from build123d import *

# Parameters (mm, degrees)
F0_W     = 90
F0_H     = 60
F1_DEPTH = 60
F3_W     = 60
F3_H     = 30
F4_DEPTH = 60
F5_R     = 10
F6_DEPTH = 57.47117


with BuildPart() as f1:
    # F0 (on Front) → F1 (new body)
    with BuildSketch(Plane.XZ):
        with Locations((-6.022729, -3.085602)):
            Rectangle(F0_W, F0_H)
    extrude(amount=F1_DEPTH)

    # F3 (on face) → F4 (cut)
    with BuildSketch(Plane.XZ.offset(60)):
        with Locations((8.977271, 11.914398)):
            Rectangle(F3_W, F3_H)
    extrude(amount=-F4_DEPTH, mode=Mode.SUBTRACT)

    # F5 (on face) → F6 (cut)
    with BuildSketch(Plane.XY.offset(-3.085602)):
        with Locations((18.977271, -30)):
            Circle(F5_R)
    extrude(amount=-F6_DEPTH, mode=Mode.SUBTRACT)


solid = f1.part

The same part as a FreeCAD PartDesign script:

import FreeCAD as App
import Part
import Sketcher

V = App.Vector

doc = App.newDocument("Part")
body = doc.addObject("PartDesign::Body", "Body")

# Sketch on XZ plane
sketch1 = body.newObject("Sketcher::SketchObject", "Sketch")
sketch1.AttachmentSupport = (doc.getObject("XZ_Plane"), [""])
sketch1.MapMode = "FlatFace"
sketch1.addGeometry(Part.LineSegment(V(-51, 27, 0), V(-51, -33, 0)), False)
sketch1.addGeometry(Part.LineSegment(V(-51, -33, 0), V(39, -33, 0)), False)
sketch1.addGeometry(Part.LineSegment(V(39, -33, 0), V(39, 27, 0)), False)
sketch1.addGeometry(Part.LineSegment(V(39, 27, 0), V(-51, 27, 0)), False)
sketch1.addConstraint(Sketcher.Constraint("Coincident", 0, 2, 1, 1))
sketch1.addConstraint(Sketcher.Constraint("Coincident", 1, 2, 2, 1))
sketch1.addConstraint(Sketcher.Constraint("Coincident", 2, 2, 3, 1))
sketch1.addConstraint(Sketcher.Constraint("Coincident", 3, 2, 0, 1))
sketch1.addConstraint(Sketcher.Constraint("Vertical", 0))
sketch1.addConstraint(Sketcher.Constraint("Horizontal", 1))
sketch1.addConstraint(Sketcher.Constraint("Vertical", 2))
sketch1.addConstraint(Sketcher.Constraint("Horizontal", 3))
sketch1.addConstraint(Sketcher.Constraint("DistanceX", 1, 1, 1, 2, 90.0))
sketch1.addConstraint(Sketcher.Constraint("DistanceY", 0, 2, 0, 1, 60.0))
sketch1.addConstraint(Sketcher.Constraint("DistanceX", 0, 2, -1, 1, 51.022729))
sketch1.addConstraint(Sketcher.Constraint("DistanceY", 0, 2, -1, 1, 33.085602))
pad1 = body.newObject("PartDesign::Pad", "Pad")
pad1.Profile = sketch1
pad1.Length = 60

# Sketch on XZ plane
sketch2 = body.newObject("Sketcher::SketchObject", "Sketch001")
sketch2.AttachmentSupport = (doc.getObject("XZ_Plane"), [""])
sketch2.MapMode = "FlatFace"
sketch2.AttachmentOffset = App.Placement(V(0, 0, 60), App.Rotation())
sketch2.addGeometry(Part.LineSegment(V(-21, 27, 0), V(-21, -3, 0)), False)
sketch2.addGeometry(Part.LineSegment(V(-21, -3, 0), V(39, -3, 0)), False)
sketch2.addGeometry(Part.LineSegment(V(39, -3, 0), V(39, 27, 0)), False)
sketch2.addGeometry(Part.LineSegment(V(39, 27, 0), V(-21, 27, 0)), False)
sketch2.addConstraint(Sketcher.Constraint("Coincident", 0, 2, 1, 1))
sketch2.addConstraint(Sketcher.Constraint("Coincident", 1, 2, 2, 1))
sketch2.addConstraint(Sketcher.Constraint("Coincident", 2, 2, 3, 1))
sketch2.addConstraint(Sketcher.Constraint("Coincident", 3, 2, 0, 1))
sketch2.addConstraint(Sketcher.Constraint("Vertical", 0))
sketch2.addConstraint(Sketcher.Constraint("Horizontal", 1))
sketch2.addConstraint(Sketcher.Constraint("Vertical", 2))
sketch2.addConstraint(Sketcher.Constraint("Horizontal", 3))
sketch2.addConstraint(Sketcher.Constraint("DistanceX", 1, 1, 1, 2, 60.0))
sketch2.addConstraint(Sketcher.Constraint("DistanceY", 0, 2, 0, 1, 30.0))
sketch2.addConstraint(Sketcher.Constraint("DistanceX", 0, 2, -1, 1, 21.022729))
sketch2.addConstraint(Sketcher.Constraint("DistanceY", 0, 2, -1, 1, 3.085602))
pocket1 = body.newObject("PartDesign::Pocket", "Pocket")
pocket1.Profile = sketch2
pocket1.Length = 60

# Sketch on XY plane
sketch3 = body.newObject("Sketcher::SketchObject", "Sketch002")
sketch3.AttachmentSupport = (doc.getObject("XY_Plane"), [""])
sketch3.MapMode = "FlatFace"
sketch3.AttachmentOffset = App.Placement(V(0, 0, -3.085602), App.Rotation())
sketch3.addGeometry(Part.Circle(V(19, -30, 0), V(0, 0, 1), 10), False)
sketch3.addConstraint(Sketcher.Constraint("Diameter", 0, 20.0))
sketch3.addConstraint(Sketcher.Constraint("DistanceY", 0, 3, -1, 1, 30.0))
sketch3.addConstraint(Sketcher.Constraint("DistanceX", -1, 1, 0, 3, 18.977271))
pocket2 = body.newObject("PartDesign::Pocket", "Pocket001")
pocket2.Profile = sketch3
pocket2.Length = 57.47117

doc.recompute()
